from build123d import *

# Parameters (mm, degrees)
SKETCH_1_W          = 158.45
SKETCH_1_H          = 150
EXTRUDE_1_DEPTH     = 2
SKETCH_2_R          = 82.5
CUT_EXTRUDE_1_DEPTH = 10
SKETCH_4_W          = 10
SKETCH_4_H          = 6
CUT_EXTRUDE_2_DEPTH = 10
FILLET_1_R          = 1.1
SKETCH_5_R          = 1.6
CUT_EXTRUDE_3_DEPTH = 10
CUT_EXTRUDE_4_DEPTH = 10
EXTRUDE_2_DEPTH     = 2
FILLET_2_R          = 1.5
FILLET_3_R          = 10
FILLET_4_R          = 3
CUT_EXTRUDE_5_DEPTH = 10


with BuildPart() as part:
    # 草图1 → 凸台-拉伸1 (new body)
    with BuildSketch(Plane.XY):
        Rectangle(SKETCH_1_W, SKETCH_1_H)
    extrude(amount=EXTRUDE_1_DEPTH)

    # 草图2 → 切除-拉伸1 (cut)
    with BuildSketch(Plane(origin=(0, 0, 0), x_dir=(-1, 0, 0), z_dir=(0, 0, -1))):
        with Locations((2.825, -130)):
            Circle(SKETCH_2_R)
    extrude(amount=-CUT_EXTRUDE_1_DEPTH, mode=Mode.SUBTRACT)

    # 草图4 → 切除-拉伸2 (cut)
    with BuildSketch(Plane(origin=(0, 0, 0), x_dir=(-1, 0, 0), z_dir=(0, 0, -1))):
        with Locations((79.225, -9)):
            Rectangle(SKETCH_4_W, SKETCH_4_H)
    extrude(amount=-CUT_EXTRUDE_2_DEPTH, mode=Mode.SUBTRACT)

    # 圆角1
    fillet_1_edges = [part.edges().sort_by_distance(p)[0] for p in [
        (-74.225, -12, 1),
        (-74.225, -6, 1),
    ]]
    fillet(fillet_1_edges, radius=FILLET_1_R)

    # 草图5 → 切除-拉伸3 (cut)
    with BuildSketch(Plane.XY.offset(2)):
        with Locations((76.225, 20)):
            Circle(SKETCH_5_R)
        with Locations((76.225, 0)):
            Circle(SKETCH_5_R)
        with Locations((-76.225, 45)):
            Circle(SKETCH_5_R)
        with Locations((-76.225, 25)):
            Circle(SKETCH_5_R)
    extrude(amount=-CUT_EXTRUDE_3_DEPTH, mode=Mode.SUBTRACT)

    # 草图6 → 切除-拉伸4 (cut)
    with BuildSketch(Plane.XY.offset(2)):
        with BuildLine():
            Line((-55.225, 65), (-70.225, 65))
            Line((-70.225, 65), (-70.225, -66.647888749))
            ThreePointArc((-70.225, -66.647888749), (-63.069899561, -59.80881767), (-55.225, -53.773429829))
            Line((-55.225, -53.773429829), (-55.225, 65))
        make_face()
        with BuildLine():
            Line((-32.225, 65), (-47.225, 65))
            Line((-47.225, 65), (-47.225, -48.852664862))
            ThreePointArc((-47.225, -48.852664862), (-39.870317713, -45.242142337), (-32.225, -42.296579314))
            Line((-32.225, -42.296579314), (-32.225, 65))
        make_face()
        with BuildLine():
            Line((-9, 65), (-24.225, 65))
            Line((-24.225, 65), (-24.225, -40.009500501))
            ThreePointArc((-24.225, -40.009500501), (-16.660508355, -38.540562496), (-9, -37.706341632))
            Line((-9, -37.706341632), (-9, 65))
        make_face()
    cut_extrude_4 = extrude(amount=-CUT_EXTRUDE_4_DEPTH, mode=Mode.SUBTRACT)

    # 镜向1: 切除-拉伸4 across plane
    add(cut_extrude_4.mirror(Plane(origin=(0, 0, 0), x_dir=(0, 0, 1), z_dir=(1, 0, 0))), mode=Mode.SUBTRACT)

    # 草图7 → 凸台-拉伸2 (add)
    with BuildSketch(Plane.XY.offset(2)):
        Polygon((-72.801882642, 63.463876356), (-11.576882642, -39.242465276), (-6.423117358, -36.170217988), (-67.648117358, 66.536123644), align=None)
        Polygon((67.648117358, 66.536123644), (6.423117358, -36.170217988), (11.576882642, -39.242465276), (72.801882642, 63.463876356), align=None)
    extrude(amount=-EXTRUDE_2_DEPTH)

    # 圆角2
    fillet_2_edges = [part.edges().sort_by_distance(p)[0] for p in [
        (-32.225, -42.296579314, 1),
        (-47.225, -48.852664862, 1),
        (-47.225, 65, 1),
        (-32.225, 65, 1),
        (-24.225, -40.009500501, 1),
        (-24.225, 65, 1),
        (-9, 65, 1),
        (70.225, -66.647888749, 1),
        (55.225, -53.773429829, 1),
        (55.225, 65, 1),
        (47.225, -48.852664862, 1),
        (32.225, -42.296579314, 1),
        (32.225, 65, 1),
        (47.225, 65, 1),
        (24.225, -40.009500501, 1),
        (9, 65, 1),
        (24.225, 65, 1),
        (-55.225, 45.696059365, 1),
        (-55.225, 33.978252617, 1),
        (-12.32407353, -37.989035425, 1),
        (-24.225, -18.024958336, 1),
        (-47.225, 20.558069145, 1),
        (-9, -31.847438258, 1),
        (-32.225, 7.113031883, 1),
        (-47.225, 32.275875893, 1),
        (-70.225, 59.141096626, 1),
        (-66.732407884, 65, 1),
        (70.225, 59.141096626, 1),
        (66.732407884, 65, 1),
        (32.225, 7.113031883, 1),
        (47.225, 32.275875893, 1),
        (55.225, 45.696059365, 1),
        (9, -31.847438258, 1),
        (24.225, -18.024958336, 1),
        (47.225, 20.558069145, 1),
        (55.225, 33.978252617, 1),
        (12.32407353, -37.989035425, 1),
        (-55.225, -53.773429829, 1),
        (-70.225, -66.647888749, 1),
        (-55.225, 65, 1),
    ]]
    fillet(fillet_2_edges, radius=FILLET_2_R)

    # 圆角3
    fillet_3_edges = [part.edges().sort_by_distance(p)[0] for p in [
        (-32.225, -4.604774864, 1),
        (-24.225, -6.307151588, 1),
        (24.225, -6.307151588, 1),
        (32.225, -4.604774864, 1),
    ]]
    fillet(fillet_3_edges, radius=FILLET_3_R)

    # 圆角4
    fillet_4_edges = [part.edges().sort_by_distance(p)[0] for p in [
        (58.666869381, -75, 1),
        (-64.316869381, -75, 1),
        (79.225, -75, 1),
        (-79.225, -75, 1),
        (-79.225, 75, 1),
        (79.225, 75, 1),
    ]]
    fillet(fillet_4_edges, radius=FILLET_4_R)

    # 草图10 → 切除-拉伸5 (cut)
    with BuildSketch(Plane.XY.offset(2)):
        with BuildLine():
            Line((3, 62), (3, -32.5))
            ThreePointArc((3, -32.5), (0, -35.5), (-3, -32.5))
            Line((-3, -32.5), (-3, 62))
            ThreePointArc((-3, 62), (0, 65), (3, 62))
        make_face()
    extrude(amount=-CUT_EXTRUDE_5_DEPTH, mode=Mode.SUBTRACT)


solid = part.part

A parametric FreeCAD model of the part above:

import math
import FreeCAD as App
import Part
import Sketcher
Q = App.Units.Quantity


def edges_at(feature, points):
    """Names of the edges that pass closest to the given points."""
    edges = feature.Shape.Edges
    near = lambda p: min(range(len(edges)), key=lambda i: edges[i].distToShape(Part.Vertex(*p))[0])
    return sorted({f"Edge{near(p) + 1}" for p in points})

doc = App.newDocument("Part")
body = doc.addObject("PartDesign::Body", "Body")

sketch1 = doc.addObject("Sketcher::SketchObject", "Sketch")
body.addObject(sketch1)
sketch1.AttachmentSupport = (doc.XY_Plane, [""])
sketch1.MapMode = "FlatFace"
sketch1.addGeometry([
    Part.LineSegment(App.Vector(-79, 75, 0), App.Vector(-79, -75, 0)),
    Part.LineSegment(App.Vector(-79, -75, 0), App.Vector(79, -75, 0)),
    Part.LineSegment(App.Vector(79, -75, 0), App.Vector(79, 75, 0)),
    Part.LineSegment(App.Vector(79, 75, 0), App.Vector(-79, 75, 0)),
], False)
sketch1.addConstraint([
    Sketcher.Constraint("Coincident", 0, 2, 1, 1),
    Sketcher.Constraint("Coincident", 1, 2, 2, 1),
    Sketcher.Constraint("Coincident", 2, 2, 3, 1),
    Sketcher.Constraint("Coincident", 3, 2, 0, 1),
    Sketcher.Constraint("Vertical", 0),
    Sketcher.Constraint("Horizontal", 1),
    Sketcher.Constraint("Vertical", 2),
    Sketcher.Constraint("Horizontal", 3),
    Sketcher.Constraint("Symmetric", 0, 2, 2, 2, -1, 1),
    Sketcher.Constraint("DistanceY", 0, 2, 0, 1, Q("150 mm")),
    Sketcher.Constraint("DistanceX", 1, 1, 1, 2, Q("158.45 mm")),
])
pad1 = doc.addObject("PartDesign::Pad", "Pad")
body.addObject(pad1)
pad1.Profile = sketch1
pad1.Length = 2

sketch2 = doc.addObject("Sketcher::SketchObject", "Sketch001")
body.addObject(sketch2)
sketch2.AttachmentSupport = (doc.XY_Plane, [""])
sketch2.MapMode = "FlatFace"
sketch2.addGeometry(Part.Circle(App.Vector(-3, -130, 0), App.Vector(0, 0, 1), 82), False)
sketch2.addConstraint([
    Sketcher.Constraint("Diameter", 0, Q("165 mm")),
    Sketcher.Constraint("DistanceY", 0, 3, -1, 1, Q("130 mm")),
    Sketcher.Constraint("DistanceX", 0, 3, -1, 1, Q("2.825 mm")),
])
pocket1 = doc.addObject("PartDesign::Pocket", "Pocket")
body.addObject(pocket1)
pocket1.Profile = sketch2
pocket1.Length = 10
pocket1.Reversed = True

sketch3 = doc.addObject("Sketcher::SketchObject", "Sketch002")
body.addObject(sketch3)
sketch3.AttachmentSupport = (doc.XY_Plane, [""])
sketch3.MapMode = "FlatFace"
sketch3.addGeometry([
    Part.LineSegment(App.Vector(-74, -6, 0), App.Vector(-74, -12, 0)),
    Part.LineSegment(App.Vector(-74, -12, 0), App.Vector(-84, -12, 0)),
    Part.LineSegment(App.Vector(-84, -12, 0), App.Vector(-84, -6, 0)),
    Part.LineSegment(App.Vector(-84, -6, 0), App.Vector(-74, -6, 0)),
], False)
sketch3.addConstraint([
    Sketcher.Constraint("Coincident", 0, 2, 1, 1),
    Sketcher.Constraint("Coincident", 1, 2, 2, 1),
    Sketcher.Constraint("Coincident", 2, 2, 3, 1),
    Sketcher.Constraint("Coincident", 3, 2, 0, 1),
    Sketcher.Constraint("Vertical", 0),
    Sketcher.Constraint("Horizontal", 1),
    Sketcher.Constraint("Vertical", 2),
    Sketcher.Constraint("Horizontal", 3),
    Sketcher.Constraint("DistanceX", 1, 2, 1, 1, Q("10 mm")),
    Sketcher.Constraint("DistanceY", 0, 2, 0, 1, Q("6 mm")),
    Sketcher.Constraint("DistanceY", 0, 2, -1, 1, Q("12 mm")),
    Sketcher.Constraint("DistanceX", 0, 2, -1, 1, Q("74.225 mm")),
])
pocket2 = doc.addObject("PartDesign::Pocket", "Pocket001")
body.addObject(pocket2)
pocket2.Profile = sketch3
pocket2.Length = 10
pocket2.Reversed = True
doc.recompute()

fillet = doc.addObject("PartDesign::Fillet", "Fillet")
body.addObject(fillet)
fillet.Base = (pocket2, edges_at(pocket2, [(-74.225, -12, 1), (-74.225, -6, 1)]))
fillet.Radius = 1.1

sketch4 = doc.addObject("Sketcher::SketchObject", "Sketch003")
body.addObject(sketch4)
sketch4.AttachmentSupport = (doc.XY_Plane, [""])
sketch4.MapMode = "FlatFace"
sketch4.AttachmentOffset = App.Placement(App.Vector(0, 0, 2), App.Rotation())
sketch4.addGeometry([
    Part.Circle(App.Vector(76.2, 20, 0), App.Vector(0, 0, 1), 1.6),
    Part.Circle(App.Vector(76.2, 0, 0), App.Vector(0, 0, 1), 1.6),
    Part.Circle(App.Vector(-76.2, 45, 0), App.Vector(0, 0, 1), 1.6),
    Part.Circle(App.Vector(-76.2, 25, 0), App.Vector(0, 0, 1), 1.6),
], False)
sketch4.addConstraint([
    Sketcher.Constraint("Equal", 0, 1),
    Sketcher.Constraint("Equal", 1, 2),
    Sketcher.Constraint("Equal", 2, 3),
    Sketcher.Constraint("PointOnObject", 1, 3, -1),
    Sketcher.Constraint("Vertical", 0, 3, 1, 3),
    Sketcher.Constraint("Vertical", 2, 3, 3, 3),
    Sketcher.Constraint("Diameter", 0, Q("3.2 mm")),
    Sketcher.Constraint("DistanceY", -1, 1, 0, 3, Q("20 mm")),
    Sketcher.Constraint("DistanceY", -1, 1, 2, 3, Q("45 mm")),
    Sketcher.Constraint("DistanceY", -1, 1, 3, 3, Q("25 mm")),
    Sketcher.Constraint("DistanceX", 2, 3, 0, 3, Q("152.45 mm")),
    Sketcher.Constraint("DistanceX", -1, 1, 0, 3, Q("76.225 mm")),
])
pocket3 = doc.addObject("PartDesign::Pocket", "Pocket002")
body.addObject(pocket3)
pocket3.Profile = sketch4
pocket3.Length = 10

sketch5 = doc.addObject("Sketcher::SketchObject", "Sketch004")
body.addObject(sketch5)
sketch5.AttachmentSupport = (doc.XY_Plane, [""])
sketch5.MapMode = "FlatFace"
sketch5.AttachmentOffset = App.Placement(App.Vector(0, 0, 2), App.Rotation())
sketch5.addGeometry([
    Part.LineSegment(App.Vector(-55, 65, 0), App.Vector(-70, 65, 0)),
    Part.LineSegment(App.Vector(-70, 65, 0), App.Vector(-70, -67, 0)),
    Part.ArcOfCircle(Part.Circle(App.Vector(-3, -130, 0), App.Vector(0, 0, 1), 92), math.radians(124.51), math.radians(136.77)),
    Part.LineSegment(App.Vector(-55, -54, 0), App.Vector(-55, 65, 0)),
    Part.LineSegment(App.Vector(-32, 65, 0), App.Vector(-47, 65, 0)),
    Part.LineSegment(App.Vector(-47, 65, 0), App.Vector(-47, -49, 0)),
    Part.ArcOfCircle(Part.Circle(App.Vector(-3, -130, 0), App.Vector(0, 0, 1), 92), math.radians(108.53), math.radians(118.69)),
    Part.LineSegment(App.Vector(-32, -42, 0), App.Vector(-32, 65, 0)),
    Part.LineSegment(App.Vector(-9, 65, 0), App.Vector(-24, 65, 0)),
    Part.LineSegment(App.Vector(-24, 65, 0), App.Vector(-24, -40, 0)),
    Part.ArcOfCircle(Part.Circle(App.Vector(-3, -130, 0), App.Vector(0, 0, 1), 93), math.radians(93.83), math.radians(103.38)),
    Part.LineSegment(App.Vector(-9, -38, 0), App.Vector(-9, 65, 0)),
], False)
sketch5.addConstraint([
    Sketcher.Constraint("Coincident", 0, 2, 1, 1),
    Sketcher.Constraint("Coincident", 1, 2, 2, 2),
    Sketcher.Constraint("Coincident", 2, 1, 3, 1),
    Sketcher.Constraint("Coincident", 3, 2, 0, 1),
    Sketcher.Constraint("Coincident", 4, 2, 5, 1),
    Sketcher.Constraint("Coincident", 5, 2, 6, 2),
    Sketcher.Constraint("Coincident", 6, 1, 7, 1),
    Sketcher.Constraint("Coincident", 7, 2, 4, 1),
    Sketcher.Constraint("Coincident", 8, 2, 9, 1),
    Sketcher.Constraint("Coincident", 9, 2, 10, 2),
    Sketcher.Constraint("Coincident", 10, 1, 11, 1),
    Sketcher.Constraint("Coincident", 11, 2, 8, 1),
    Sketcher.Constraint("Horizontal", 0),
    Sketcher.Constraint("Vertical", 1),
    Sketcher.Constraint("Vertical", 3),
    Sketcher.Constraint("Horizontal", 4),
    Sketcher.Constraint("Vertical", 5),
    Sketcher.Constraint("Vertical", 7),
    Sketcher.Constraint("Horizontal", 8),
    Sketcher.Constraint("Vertical", 9),
    Sketcher.Constraint("Vertical", 11),
    Sketcher.Constraint("Coincident", 6, 3, 2, 3),
    Sketcher.Constraint("Coincident", 10, 3, 2, 3),
    Sketcher.Constraint("Equal", 2, 6),
    Sketcher.Constraint("Equal", 6, 10),
    Sketcher.Constraint("Horizontal", 3, 2, 4, 2),
    Sketcher.Constraint("Horizontal", 7, 2, 8, 2),
    Sketcher.Constraint("Equal", 0, 4),
    Sketcher.Constraint("Radius", 2, Q("92.5 mm")),
    Sketcher.Constraint("DistanceX", 0, 2, 0, 1, Q("15 mm")),
    Sketcher.Constraint("DistanceY", 2, 3, -1, 1, Q("130 mm")),
    Sketcher.Constraint("DistanceY", -1, 1, 0, 2, Q("65 mm")),
    Sketcher.Constraint("DistanceX", 10, 1, -1, 1, Q("9 mm")),
    Sketcher.Constraint("DistanceX", 3, 2, 4, 2, Q("8 mm")),
    Sketcher.Constraint("DistanceX", 7, 2, 8, 2, Q("8 mm")),
    Sketcher.Constraint("DistanceX", 0, 2, 6, 3, Q("67.4 mm")),
    Sketcher.Constraint("DistanceX", 8, 2, 8, 1, Q("15.225 mm")),
])
pocket4 = doc.addObject("PartDesign::Pocket", "Pocket003")
body.addObject(pocket4)
pocket4.Profile = sketch5
pocket4.Length = 10
doc.recompute()

mirrored = doc.addObject("PartDesign::Mirrored", "Mirrored")
body.addObject(mirrored)
mirrored.Originals = [pocket4]
mirrored.MirrorPlane = (doc.YZ_Plane, [""])
body.Tip = mirrored

sketch6 = doc.addObject("Sketcher::SketchObject", "Sketch005")
body.addObject(sketch6)
sketch6.AttachmentSupport = (doc.XY_Plane, [""])
sketch6.MapMode = "FlatFace"
sketch6.AttachmentOffset = App.Placement(App.Vector(0, 0, 2), App.Rotation())
sketch6.addGeometry([
    Part.LineSegment(App.Vector(-73, 63, 0), App.Vector(-12, -39, 0)),
    Part.LineSegment(App.Vector(-12, -39, 0), App.Vector(-6, -36, 0)),
    Part.LineSegment(App.Vector(-6, -36, 0), App.Vector(-68, 67, 0)),
    Part.LineSegment(App.Vector(-68, 67, 0), App.Vector(-73, 63, 0)),
    Part.LineSegment(App.Vector(68, 67, 0), App.Vector(6, -36, 0)),
    Part.LineSegment(App.Vector(6, -36, 0), App.Vector(12, -39, 0)),
    Part.LineSegment(App.Vector(12, -39, 0), App.Vector(73, 63, 0)),
    Part.LineSegment(App.Vector(73, 63, 0), App.Vector(68, 67, 0)),
], False)
sketch6.addConstraint([
    Sketcher.Constraint("Coincident", 0, 2, 1, 1),
    Sketcher.Constraint("Coincident", 1, 2, 2, 1),
    Sketcher.Constraint("Coincident", 2, 2, 3, 1),
    Sketcher.Constraint("Coincident", 3, 2, 0, 1),
    Sketcher.Constraint("Coincident", 4, 2, 5, 1),
    Sketcher.Constraint("Coincident", 5, 2, 6, 1),
    Sketcher.Constraint("Coincident", 6, 2, 7, 1),
    Sketcher.Constraint("Coincident", 7, 2, 4, 1),
    Sketcher.Constraint("Symmetric", 1, 2, 4, 2, -2),
    Sketcher.Constraint("Symmetric", 0, 2, 5, 2, -2),
    Sketcher.Constraint("Symmetric", 3, 2, 6, 2, -2),
    Sketcher.Constraint("Symmetric", 2, 2, 7, 2, -2),
    Sketcher.Constraint("Perpendicular", 0, 1),
    Sketcher.Constraint("Perpendicular", 1, 2),
    Sketcher.Constraint("Perpendicular", 2, 3),
    Sketcher.Constraint("Distance", 1, Q("6 mm")),
    Sketcher.Constraint("DistanceX", 0, 2, 4, 2, Q("18 mm")),
    Sketcher.Constraint("DistanceX", 2, 2, 6, 2, Q("140.45 mm")),
    Sketcher.Constraint("DistanceY", 1, 2, 2, 2, Q("102.706342 mm")),
    Sketcher.Constraint("DistanceY", 0, 2, -1, 1, Q("39.242465 mm")),
])
pad2 = doc.addObject("PartDesign::Pad", "Pad001")
body.addObject(pad2)
pad2.Profile = sketch6
pad2.Length = 2
pad2.Reversed = True
doc.recompute()

fillet2 = doc.addObject("PartDesign::Fillet", "Fillet001")
body.addObject(fillet2)
fillet2.Base = (pad2, edges_at(pad2, [
    (-32.225, -42.297, 1),
    (-47.225, -48.853, 1),
    (-47.225, 65, 1),
    (-32.225, 65, 1),
    (-24.225, -40.01, 1),
    (-24.225, 65, 1),
    (-9, 65, 1),
    (70.225, -66.648, 1),
    (55.225, -53.773, 1),
    (55.225, 65, 1),
    (47.225, -48.853, 1),
    (32.225, -42.297, 1),
    (32.225, 65, 1),
    (47.225, 65, 1),
    (24.225, -40.01, 1),
    (9, 65, 1),
    (24.225, 65, 1),
    (-55.225, 45.696, 1),
    (-55.225, 33.978, 1),
    (-12.324, -37.989, 1),
    (-24.225, -18.025, 1),
    (-47.225, 20.558, 1),
    (-9, -31.847, 1),
    (-32.225, 7.113, 1),
    (-47.225, 32.276, 1),
    (-70.225, 59.141, 1),
    (-66.732, 65, 1),
    (70.225, 59.141, 1),
    (66.732, 65, 1),
    (32.225, 7.113, 1),
    (47.225, 32.276, 1),
    (55.225, 45.696, 1),
    (9, -31.847, 1),
    (24.225, -18.025, 1),
    (47.225, 20.558, 1),
    (55.225, 33.978, 1),
    (12.324, -37.989, 1),
    (-55.225, -53.773, 1),
    (-70.225, -66.648, 1),
    (-55.225, 65, 1),
]))
fillet2.Radius = 1.5
doc.recompute()

fillet3 = doc.addObject("PartDesign::Fillet", "Fillet002")
body.addObject(fillet3)
fillet3.Base = (fillet2, edges_at(fillet2, [
    (-32.225, -4.605, 1),
    (-24.225, -6.307, 1),
    (24.225, -6.307, 1),
    (32.225, -4.605, 1),
]))
fillet3.Radius = 10
doc.recompute()

fillet4 = doc.addObject("PartDesign::Fillet", "Fillet003")
body.addObject(fillet4)
fillet4.Base = (fillet3, edges_at(fillet3, [
    (58.667, -75, 1),
    (-64.317, -75, 1),
    (79.225, -75, 1),
    (-79.225, -75, 1),
    (-79.225, 75, 1),
    (79.225, 75, 1),
]))
fillet4.Radius = 3

sketch7 = doc.addObject("Sketcher::SketchObject", "Sketch006")
body.addObject(sketch7)
sketch7.AttachmentSupport = (doc.XY_Plane, [""])
sketch7.MapMode = "FlatFace"
sketch7.AttachmentOffset = App.Placement(App.Vector(0, 0, 2), App.Rotation())
sketch7.addGeometry([
    Part.LineSegment(App.Vector(3, -32.5, 0), App.Vector(3, 62, 0)),
    Part.ArcOfCircle(Part.Circle(App.Vector(0, 62, 0), App.Vector(0, 0, 1), 3), math.radians(0), math.radians(180)),
    Part.LineSegment(App.Vector(-3, 62, 0), App.Vector(-3, -32.5, 0)),
    Part.ArcOfCircle(Part.Circle(App.Vector(0, -32.5, 0), App.Vector(0, 0, 1), 3), math.radians(180), math.radians(360)),
], False)
sketch7.addConstraint([
    Sketcher.Constraint("Tangent", 0, 2, 1, 1),
    Sketcher.Constraint("Tangent", 1, 2, 2, 1),
    Sketcher.Constraint("Tangent", 2, 2, 3, 1),
    Sketcher.Constraint("Tangent", 3, 2, 0, 1),
    Sketcher.Constraint("Vertical", 0),
    Sketcher.Constraint("Vertical", 2),
    Sketcher.Constraint("PointOnObject", 1, 3, -2),
    Sketcher.Constraint("Radius", 1, Q("3 mm")),
    Sketcher.Constraint("DistanceY", 0, 1, 0, 2, Q("94.5 mm")),
    Sketcher.Constraint("DistanceY", -1, 1, 1, 3, Q("62 mm")),
])
pocket5 = doc.addObject("PartDesign::Pocket", "Pocket004")
body.addObject(pocket5)
pocket5.Profile = sketch7
pocket5.Length = 10

doc.recompute()
